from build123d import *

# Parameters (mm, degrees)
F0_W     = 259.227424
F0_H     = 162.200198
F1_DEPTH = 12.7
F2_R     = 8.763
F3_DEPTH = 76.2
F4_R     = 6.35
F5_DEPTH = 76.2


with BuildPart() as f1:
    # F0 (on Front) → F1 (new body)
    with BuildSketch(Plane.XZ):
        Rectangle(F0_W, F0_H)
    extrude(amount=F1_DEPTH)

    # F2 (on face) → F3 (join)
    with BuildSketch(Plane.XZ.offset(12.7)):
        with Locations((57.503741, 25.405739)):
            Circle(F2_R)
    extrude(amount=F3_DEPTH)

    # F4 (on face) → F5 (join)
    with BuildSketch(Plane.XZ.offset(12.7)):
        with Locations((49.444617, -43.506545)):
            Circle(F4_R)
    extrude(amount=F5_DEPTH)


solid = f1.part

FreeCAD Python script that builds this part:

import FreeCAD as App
import Part
import Sketcher
from FreeCAD import Vector
Q = App.Units.Quantity


def add_polygon(sketch, points):
    """Adds a closed chain of lines whose ends are joined by coincident constraints."""
    first, n = sketch.GeometryCount, len(points)
    for a, b in zip(points, points[1:] + points[:1]):
        sketch.addGeometry(Part.LineSegment(App.Vector(*a, 0), App.Vector(*b, 0)), False)
    for i in range(n):
        sketch.addConstraint(Sketcher.Constraint("Coincident", first + i, 2, first + (i + 1) % n, 1))

doc = App.newDocument("Part")
params = doc.addObject("Spreadsheet::Sheet", "Params")
for row, (alias, value) in enumerate([
    ("pad1_length", "0.5 in"),
    ("sketch2_diameter", "0.69 in"),
    ("pad2_length", "3 in"),
    ("sketch3_diameter", "0.5 in"),
    ("pad3_length", "3 in"),
], start=1):
    params.set(f"A{row}", alias)
    params.set(f"B{row}", "=" + value)
    params.setAlias(f"B{row}", alias)

body = doc.addObject("PartDesign::Body", "Body")

# Sketch on XZ plane
sketch1 = body.newObject("Sketcher::SketchObject", "Sketch")
sketch1.AttachmentSupport = (doc.getObject("XZ_Plane"), [""])
sketch1.MapMode = "FlatFace"
add_polygon(sketch1, [(-130, 81), (-130, -81), (130, -81), (130, 81)])  # lines 0-3
sketch1.addConstraint([
    Sketcher.Constraint("Vertical", 0),
    Sketcher.Constraint("Horizontal", 1),
    Sketcher.Constraint("Vertical", 2),
    Sketcher.Constraint("Horizontal", 3),
    Sketcher.Constraint("Symmetric", 0, 2, 2, 2, -1, 1),
    Sketcher.Constraint("DistanceY", 0, 2, 0, 1, Q("162.200198 mm")),
    Sketcher.Constraint("DistanceX", 1, 1, 1, 2, Q("259.227424 mm")),
])
pad1 = body.newObject("PartDesign::Pad", "Pad")
pad1.Profile = sketch1
pad1.setExpression("Length", "Params.pad1_length")

# Sketch on XZ plane
sketch2 = body.newObject("Sketcher::SketchObject", "Sketch001")
sketch2.AttachmentSupport = (doc.getObject("XZ_Plane"), [""])
sketch2.MapMode = "FlatFace"
sketch2.AttachmentOffset = App.Placement(Vector(0, 0, 0.5 * 25.4), App.Rotation())
sketch2.addGeometry(Part.Circle(Vector(58, 25, 0), Vector(0, 0, 1), 9), False)
sketch2.addConstraint([
    Sketcher.Constraint("Diameter", 0, Q("0.69 in")),
    Sketcher.Constraint("DistanceX", -1, 1, 0, 3, Q("57.503741 mm")),
    Sketcher.Constraint("DistanceY", -1, 1, 0, 3, Q("25.405739 mm")),
])
sketch2.setExpression("Constraints[0]", "Params.sketch2_diameter")
pad2 = body.newObject("PartDesign::Pad", "Pad001")
pad2.Profile = sketch2
pad2.setExpression("Length", "Params.pad2_length")

# Sketch on XZ plane
sketch3 = body.newObject("Sketcher::SketchObject", "Sketch002")
sketch3.AttachmentSupport = (doc.getObject("XZ_Plane"), [""])
sketch3.MapMode = "FlatFace"
sketch3.AttachmentOffset = App.Placement(Vector(0, 0, 0.5 * 25.4), App.Rotation())
sketch3.addGeometry(Part.Circle(Vector(49, -44, 0), Vector(0, 0, 1), 6), False)
sketch3.addConstraint([
    Sketcher.Constraint("Diameter", 0, Q("0.5 in")),
    Sketcher.Constraint("DistanceX", -1, 1, 0, 3, Q("49.444617 mm")),
    Sketcher.Constraint("DistanceY", 0, 3, -1, 1, Q("43.506545 mm")),
])
sketch3.setExpression("Constraints[0]", "Params.sketch3_diameter")
pad3 = body.newObject("PartDesign::Pad", "Pad002")
pad3.Profile = sketch3
pad3.setExpression("Length", "Params.pad3_length")

doc.recompute()
